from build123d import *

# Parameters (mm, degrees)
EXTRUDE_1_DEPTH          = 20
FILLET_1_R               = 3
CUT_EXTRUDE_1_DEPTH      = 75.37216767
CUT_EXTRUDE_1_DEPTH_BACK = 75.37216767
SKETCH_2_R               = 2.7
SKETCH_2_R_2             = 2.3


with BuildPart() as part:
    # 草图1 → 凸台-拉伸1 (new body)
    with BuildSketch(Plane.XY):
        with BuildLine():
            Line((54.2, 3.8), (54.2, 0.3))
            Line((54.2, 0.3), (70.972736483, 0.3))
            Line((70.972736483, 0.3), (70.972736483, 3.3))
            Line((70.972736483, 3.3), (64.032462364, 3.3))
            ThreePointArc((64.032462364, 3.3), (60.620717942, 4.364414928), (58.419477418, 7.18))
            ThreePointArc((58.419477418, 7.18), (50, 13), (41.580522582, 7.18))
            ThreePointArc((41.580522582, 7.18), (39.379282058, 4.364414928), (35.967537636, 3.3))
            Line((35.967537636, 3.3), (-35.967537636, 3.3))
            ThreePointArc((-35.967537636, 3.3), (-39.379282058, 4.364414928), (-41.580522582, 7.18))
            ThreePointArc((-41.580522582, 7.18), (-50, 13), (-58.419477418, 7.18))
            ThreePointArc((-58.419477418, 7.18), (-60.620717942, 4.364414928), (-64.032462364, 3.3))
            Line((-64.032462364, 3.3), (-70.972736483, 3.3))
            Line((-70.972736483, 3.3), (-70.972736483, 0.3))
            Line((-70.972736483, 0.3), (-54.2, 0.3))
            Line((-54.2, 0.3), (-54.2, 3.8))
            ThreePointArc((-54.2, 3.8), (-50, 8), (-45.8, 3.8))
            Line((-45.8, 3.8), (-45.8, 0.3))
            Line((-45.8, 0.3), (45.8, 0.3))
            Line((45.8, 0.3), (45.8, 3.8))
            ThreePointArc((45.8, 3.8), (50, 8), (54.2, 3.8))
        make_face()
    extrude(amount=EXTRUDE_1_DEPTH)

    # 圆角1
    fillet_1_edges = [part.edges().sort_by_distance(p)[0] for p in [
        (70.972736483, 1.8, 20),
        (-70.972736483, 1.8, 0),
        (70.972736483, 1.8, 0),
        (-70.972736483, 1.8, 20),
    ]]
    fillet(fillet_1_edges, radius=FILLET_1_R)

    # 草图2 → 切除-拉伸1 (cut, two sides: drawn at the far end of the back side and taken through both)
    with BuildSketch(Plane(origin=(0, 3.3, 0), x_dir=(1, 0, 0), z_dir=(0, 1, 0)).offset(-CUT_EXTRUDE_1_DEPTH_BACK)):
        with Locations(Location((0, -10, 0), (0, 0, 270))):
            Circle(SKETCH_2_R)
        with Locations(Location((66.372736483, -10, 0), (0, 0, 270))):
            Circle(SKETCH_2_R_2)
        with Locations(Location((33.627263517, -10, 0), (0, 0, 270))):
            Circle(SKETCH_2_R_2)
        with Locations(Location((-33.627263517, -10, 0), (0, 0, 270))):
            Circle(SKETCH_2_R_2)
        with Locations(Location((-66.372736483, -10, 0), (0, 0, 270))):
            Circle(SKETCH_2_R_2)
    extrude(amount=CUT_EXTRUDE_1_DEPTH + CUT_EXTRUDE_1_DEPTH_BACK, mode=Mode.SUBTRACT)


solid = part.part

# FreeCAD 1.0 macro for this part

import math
import FreeCAD as App
import Part
import Sketcher

V = App.Vector
Q = App.Units.Quantity


def edges_at(feature, points):
    """Names of the edges that pass closest to the given points."""
    edges = feature.Shape.Edges
    near = lambda p: min(range(len(edges)), key=lambda i: edges[i].distToShape(Part.Vertex(*p))[0])
    return sorted({f"Edge{near(p) + 1}" for p in points})

doc = App.newDocument("Part")
params = doc.addObject("Spreadsheet::Sheet", "Params")
for row, (alias, value) in enumerate([
    ("sketch1_radius", "6 mm"),
    ("sketch1_radius2", "9 mm"),
    ("sketch1_radius3", "4.2 mm"),
    ("sketch1_height", "3 mm"),
    ("sketch1_width", "91.6 mm"),
    ("pad1_length", "20 mm"),
    ("fillet_radius", "3 mm"),
    ("sketch2_diameter", "5.4 mm"),
    ("sketch2_diameter2", "4.6 mm"),
], start=1):
    params.set(f"A{row}", alias)
    params.set(f"B{row}", "=" + value)
    params.setAlias(f"B{row}", alias)

body = doc.addObject("PartDesign::Body", "Body")

# Sketch on XY plane
sketch1 = body.newObject("Sketcher::SketchObject", "Sketch")
sketch1.AttachmentSupport = (doc.getObject("XY_Plane"), [""])
sketch1.MapMode = "FlatFace"
sketch1.addGeometry([
    Part.LineSegment(V(54.2, 3.8, 0), V(54.2, 0.3, 0)),  # 0
    Part.LineSegment(V(54.2, 0.3, 0), V(71, 0.3, 0)),  # 1
    Part.LineSegment(V(71, 0.3, 0), V(71, 3.3, 0)),  # 2
    Part.LineSegment(V(71, 3.3, 0), V(64, 3.3, 0)),  # 3
    Part.ArcOfCircle(Part.Circle(V(64, 9.3, 0), V(0, 0, 1), 6), math.radians(-159), math.radians(-90)),  # 4
    Part.ArcOfCircle(Part.Circle(V(50, 4, 0), V(0, 0, 1), 9), math.radians(21), math.radians(159)),  # 5
    Part.ArcOfCircle(Part.Circle(V(36, 9.3, 0), V(0, 0, 1), 6), math.radians(-90), math.radians(-21)),  # 6
    Part.LineSegment(V(36, 3.3, 0), V(-36, 3.3, 0)),  # 7
    Part.ArcOfCircle(Part.Circle(V(-36, 9.3, 0), V(0, 0, 1), 6), math.radians(-159), math.radians(-90)),  # 8
    Part.ArcOfCircle(Part.Circle(V(-50, 4, 0), V(0, 0, 1), 9), math.radians(21), math.radians(159)),  # 9
    Part.ArcOfCircle(Part.Circle(V(-64, 9.3, 0), V(0, 0, 1), 6), math.radians(-90), math.radians(-21)),  # 10
    Part.LineSegment(V(-64, 3.3, 0), V(-71, 3.3, 0)),  # 11
    Part.LineSegment(V(-71, 3.3, 0), V(-71, 0.3, 0)),  # 12
    Part.LineSegment(V(-71, 0.3, 0), V(-54.2, 0.3, 0)),  # 13
    Part.LineSegment(V(-54.2, 0.3, 0), V(-54.2, 3.8, 0)),  # 14
    Part.ArcOfCircle(Part.Circle(V(-50, 3.8, 0), V(0, 0, 1), 4.2), math.radians(0), math.radians(180)),  # 15
    Part.LineSegment(V(-45.8, 3.8, 0), V(-45.8, 0.3, 0)),  # 16
    Part.LineSegment(V(-45.8, 0.3, 0), V(45.8, 0.3, 0)),  # 17
    Part.LineSegment(V(45.8, 0.3, 0), V(45.8, 3.8, 0)),  # 18
    Part.ArcOfCircle(Part.Circle(V(50, 3.8, 0), V(0, 0, 1), 4.2), math.radians(0), math.radians(180)),  # 19
], False)
sketch1.addConstraint([
    Sketcher.Constraint("Coincident", 0, 2, 1, 1),
    Sketcher.Constraint("Coincident", 1, 2, 2, 1),
    Sketcher.Constraint("Coincident", 2, 2, 3, 1),
    Sketcher.Constraint("Tangent", 3, 2, 4, 2),
    Sketcher.Constraint("Tangent", 4, 1, 5, 1),
    Sketcher.Constraint("Tangent", 5, 2, 6, 2),
    Sketcher.Constraint("Tangent", 6, 1, 7, 1),
    Sketcher.Constraint("Tangent", 7, 2, 8, 2),
    Sketcher.Constraint("Tangent", 8, 1, 9, 1),
    Sketcher.Constraint("Tangent", 9, 2, 10, 2),
    Sketcher.Constraint("Tangent", 10, 1, 11, 1),
    Sketcher.Constraint("Coincident", 11, 2, 12, 1),
    Sketcher.Constraint("Coincident", 12, 2, 13, 1),
    Sketcher.Constraint("Coincident", 13, 2, 14, 1),
    Sketcher.Constraint("Tangent", 14, 2, 15, 2),
    Sketcher.Constraint("Tangent", 15, 1, 16, 1),
    Sketcher.Constraint("Coincident", 16, 2, 17, 1),
    Sketcher.Constraint("Coincident", 17, 2, 18, 1),
    Sketcher.Constraint("Tangent", 18, 2, 19, 2),
    Sketcher.Constraint("Tangent", 19, 1, 0, 1),
    Sketcher.Constraint("Vertical", 0),
    Sketcher.Constraint("Horizontal", 1),
    Sketcher.Constraint("Vertical", 2),
    Sketcher.Constraint("Horizontal", 3),
    Sketcher.Constraint("Horizontal", 7),
    Sketcher.Constraint("Horizontal", 11),
    Sketcher.Constraint("Vertical", 12),
    Sketcher.Constraint("Horizontal", 13),
    Sketcher.Constraint("Vertical", 14),
    Sketcher.Constraint("Vertical", 16),
    Sketcher.Constraint("Horizontal", 17),
    Sketcher.Constraint("Vertical", 18),
    Sketcher.Constraint("Equal", 4, 6),
    Sketcher.Constraint("Equal", 6, 8),
    Sketcher.Constraint("Equal", 5, 9),
    Sketcher.Constraint("Equal", 8, 10),
    Sketcher.Constraint("Equal", 15, 19),
    Sketcher.Constraint("Symmetric", 5, 3, 9, 3, -2),
    Sketcher.Constraint("Symmetric", 15, 3, 19, 3, -2),
    Sketcher.Constraint("Symmetric", 2, 2, 11, 2, -2),
    Sketcher.Constraint("Horizontal", 4, 3, 6, 3),
    Sketcher.Constraint("Horizontal", 1, 2, 12, 2),
    Sketcher.Constraint("Horizontal", 13, 2, 16, 2),
    Sketcher.Constraint("Vertical", 9, 3, 15, 3),
    Sketcher.Constraint("Radius", 4, Q("6 mm")),
    Sketcher.Constraint("Radius", 5, Q("9 mm")),
    Sketcher.Constraint("Radius", 15, Q("4.2 mm")),
    Sketcher.Constraint("DistanceY", 2, 1, 2, 2, Q("3 mm")),
    Sketcher.Constraint("DistanceX", 17, 1, 17, 2, Q("91.6 mm")),
    Sketcher.Constraint("DistanceY", 0, 2, 0, 1, Q("3.5 mm")),
    Sketcher.Constraint("DistanceY", -1, 1, 5, 3, Q("4 mm")),
    Sketcher.Constraint("DistanceY", -1, 1, 4, 3, Q("9.3 mm")),
    Sketcher.Constraint("DistanceX", 6, 3, 1, 2, Q("35.005199 mm")),
])
sketch1.setExpression("Constraints[44]", "Params.sketch1_radius")
sketch1.setExpression("Constraints[45]", "Params.sketch1_radius2")
sketch1.setExpression("Constraints[46]", "Params.sketch1_radius3")
sketch1.setExpression("Constraints[47]", "Params.sketch1_height")
sketch1.setExpression("Constraints[48]", "Params.sketch1_width")
pad1 = body.newObject("PartDesign::Pad", "Pad")
pad1.Profile = sketch1
pad1.setExpression("Length", "Params.pad1_length")
doc.recompute()

fillet = body.newObject("PartDesign::Fillet", "Fillet")
fillet.Base = (pad1, edges_at(pad1, [
    (70.973, 1.8, 20),
    (-70.973, 1.8, 0),
    (70.973, 1.8, 0),
    (-70.973, 1.8, 20),
]))
fillet.setExpression("Radius", "Params.fillet_radius")

# Sketch on XZ plane
sketch2 = body.newObject("Sketcher::SketchObject", "Sketch001")
sketch2.AttachmentSupport = (doc.getObject("XZ_Plane"), [""])
sketch2.MapMode = "FlatFace"
sketch2.AttachmentOffset = App.Placement(V(0, 0, -3.3), App.Rotation())
sketch2.addGeometry([
    Part.Circle(V(0, 10, 0), V(0, 0, 1), 2.7),  # 0
    Part.Circle(V(66.4, 10, 0), V(0, 0, 1), 2.3),  # 1
    Part.Circle(V(33.6, 10, 0), V(0, 0, 1), 2.3),  # 2
    Part.Circle(V(-33.6, 10, 0), V(0, 0, 1), 2.3),  # 3
    Part.Circle(V(-66.4, 10, 0), V(0, 0, 1), 2.3),  # 4
], False)
sketch2.addConstraint([
    Sketcher.Constraint("Equal", 1, 2),
    Sketcher.Constraint("Equal", 2, 3),
    Sketcher.Constraint("Equal", 3, 4),
    Sketcher.Constraint("Symmetric", 2, 3, 3, 3, -2),
    Sketcher.Constraint("Symmetric", 1, 3, 4, 3, -2),
    Sketcher.Constraint("PointOnObject", 0, 3, -2),
    Sketcher.Constraint("Horizontal", 0, 3, 1, 3),
    Sketcher.Constraint("Horizontal", 1, 3, 2, 3),
    Sketcher.Constraint("Diameter", 0, Q("5.4 mm")),
    Sketcher.Constraint("Diameter", 1, Q("4.6 mm")),
    Sketcher.Constraint("DistanceY", -1, 1, 0, 3, Q("10 mm")),
    Sketcher.Constraint("DistanceX", 3, 3, 1, 3, Q("100 mm")),
    Sketcher.Constraint("DistanceX", -1, 1, 1, 3, Q("66.372736 mm")),
])
sketch2.setExpression("Constraints[8]", "Params.sketch2_diameter")
sketch2.setExpression("Constraints[9]", "Params.sketch2_diameter2")
pocket1 = body.newObject("PartDesign::Pocket", "Pocket")
pocket1.Profile = sketch2
pocket1.Type = "ThroughAll"
pocket1.Midplane = True

doc.recompute()
